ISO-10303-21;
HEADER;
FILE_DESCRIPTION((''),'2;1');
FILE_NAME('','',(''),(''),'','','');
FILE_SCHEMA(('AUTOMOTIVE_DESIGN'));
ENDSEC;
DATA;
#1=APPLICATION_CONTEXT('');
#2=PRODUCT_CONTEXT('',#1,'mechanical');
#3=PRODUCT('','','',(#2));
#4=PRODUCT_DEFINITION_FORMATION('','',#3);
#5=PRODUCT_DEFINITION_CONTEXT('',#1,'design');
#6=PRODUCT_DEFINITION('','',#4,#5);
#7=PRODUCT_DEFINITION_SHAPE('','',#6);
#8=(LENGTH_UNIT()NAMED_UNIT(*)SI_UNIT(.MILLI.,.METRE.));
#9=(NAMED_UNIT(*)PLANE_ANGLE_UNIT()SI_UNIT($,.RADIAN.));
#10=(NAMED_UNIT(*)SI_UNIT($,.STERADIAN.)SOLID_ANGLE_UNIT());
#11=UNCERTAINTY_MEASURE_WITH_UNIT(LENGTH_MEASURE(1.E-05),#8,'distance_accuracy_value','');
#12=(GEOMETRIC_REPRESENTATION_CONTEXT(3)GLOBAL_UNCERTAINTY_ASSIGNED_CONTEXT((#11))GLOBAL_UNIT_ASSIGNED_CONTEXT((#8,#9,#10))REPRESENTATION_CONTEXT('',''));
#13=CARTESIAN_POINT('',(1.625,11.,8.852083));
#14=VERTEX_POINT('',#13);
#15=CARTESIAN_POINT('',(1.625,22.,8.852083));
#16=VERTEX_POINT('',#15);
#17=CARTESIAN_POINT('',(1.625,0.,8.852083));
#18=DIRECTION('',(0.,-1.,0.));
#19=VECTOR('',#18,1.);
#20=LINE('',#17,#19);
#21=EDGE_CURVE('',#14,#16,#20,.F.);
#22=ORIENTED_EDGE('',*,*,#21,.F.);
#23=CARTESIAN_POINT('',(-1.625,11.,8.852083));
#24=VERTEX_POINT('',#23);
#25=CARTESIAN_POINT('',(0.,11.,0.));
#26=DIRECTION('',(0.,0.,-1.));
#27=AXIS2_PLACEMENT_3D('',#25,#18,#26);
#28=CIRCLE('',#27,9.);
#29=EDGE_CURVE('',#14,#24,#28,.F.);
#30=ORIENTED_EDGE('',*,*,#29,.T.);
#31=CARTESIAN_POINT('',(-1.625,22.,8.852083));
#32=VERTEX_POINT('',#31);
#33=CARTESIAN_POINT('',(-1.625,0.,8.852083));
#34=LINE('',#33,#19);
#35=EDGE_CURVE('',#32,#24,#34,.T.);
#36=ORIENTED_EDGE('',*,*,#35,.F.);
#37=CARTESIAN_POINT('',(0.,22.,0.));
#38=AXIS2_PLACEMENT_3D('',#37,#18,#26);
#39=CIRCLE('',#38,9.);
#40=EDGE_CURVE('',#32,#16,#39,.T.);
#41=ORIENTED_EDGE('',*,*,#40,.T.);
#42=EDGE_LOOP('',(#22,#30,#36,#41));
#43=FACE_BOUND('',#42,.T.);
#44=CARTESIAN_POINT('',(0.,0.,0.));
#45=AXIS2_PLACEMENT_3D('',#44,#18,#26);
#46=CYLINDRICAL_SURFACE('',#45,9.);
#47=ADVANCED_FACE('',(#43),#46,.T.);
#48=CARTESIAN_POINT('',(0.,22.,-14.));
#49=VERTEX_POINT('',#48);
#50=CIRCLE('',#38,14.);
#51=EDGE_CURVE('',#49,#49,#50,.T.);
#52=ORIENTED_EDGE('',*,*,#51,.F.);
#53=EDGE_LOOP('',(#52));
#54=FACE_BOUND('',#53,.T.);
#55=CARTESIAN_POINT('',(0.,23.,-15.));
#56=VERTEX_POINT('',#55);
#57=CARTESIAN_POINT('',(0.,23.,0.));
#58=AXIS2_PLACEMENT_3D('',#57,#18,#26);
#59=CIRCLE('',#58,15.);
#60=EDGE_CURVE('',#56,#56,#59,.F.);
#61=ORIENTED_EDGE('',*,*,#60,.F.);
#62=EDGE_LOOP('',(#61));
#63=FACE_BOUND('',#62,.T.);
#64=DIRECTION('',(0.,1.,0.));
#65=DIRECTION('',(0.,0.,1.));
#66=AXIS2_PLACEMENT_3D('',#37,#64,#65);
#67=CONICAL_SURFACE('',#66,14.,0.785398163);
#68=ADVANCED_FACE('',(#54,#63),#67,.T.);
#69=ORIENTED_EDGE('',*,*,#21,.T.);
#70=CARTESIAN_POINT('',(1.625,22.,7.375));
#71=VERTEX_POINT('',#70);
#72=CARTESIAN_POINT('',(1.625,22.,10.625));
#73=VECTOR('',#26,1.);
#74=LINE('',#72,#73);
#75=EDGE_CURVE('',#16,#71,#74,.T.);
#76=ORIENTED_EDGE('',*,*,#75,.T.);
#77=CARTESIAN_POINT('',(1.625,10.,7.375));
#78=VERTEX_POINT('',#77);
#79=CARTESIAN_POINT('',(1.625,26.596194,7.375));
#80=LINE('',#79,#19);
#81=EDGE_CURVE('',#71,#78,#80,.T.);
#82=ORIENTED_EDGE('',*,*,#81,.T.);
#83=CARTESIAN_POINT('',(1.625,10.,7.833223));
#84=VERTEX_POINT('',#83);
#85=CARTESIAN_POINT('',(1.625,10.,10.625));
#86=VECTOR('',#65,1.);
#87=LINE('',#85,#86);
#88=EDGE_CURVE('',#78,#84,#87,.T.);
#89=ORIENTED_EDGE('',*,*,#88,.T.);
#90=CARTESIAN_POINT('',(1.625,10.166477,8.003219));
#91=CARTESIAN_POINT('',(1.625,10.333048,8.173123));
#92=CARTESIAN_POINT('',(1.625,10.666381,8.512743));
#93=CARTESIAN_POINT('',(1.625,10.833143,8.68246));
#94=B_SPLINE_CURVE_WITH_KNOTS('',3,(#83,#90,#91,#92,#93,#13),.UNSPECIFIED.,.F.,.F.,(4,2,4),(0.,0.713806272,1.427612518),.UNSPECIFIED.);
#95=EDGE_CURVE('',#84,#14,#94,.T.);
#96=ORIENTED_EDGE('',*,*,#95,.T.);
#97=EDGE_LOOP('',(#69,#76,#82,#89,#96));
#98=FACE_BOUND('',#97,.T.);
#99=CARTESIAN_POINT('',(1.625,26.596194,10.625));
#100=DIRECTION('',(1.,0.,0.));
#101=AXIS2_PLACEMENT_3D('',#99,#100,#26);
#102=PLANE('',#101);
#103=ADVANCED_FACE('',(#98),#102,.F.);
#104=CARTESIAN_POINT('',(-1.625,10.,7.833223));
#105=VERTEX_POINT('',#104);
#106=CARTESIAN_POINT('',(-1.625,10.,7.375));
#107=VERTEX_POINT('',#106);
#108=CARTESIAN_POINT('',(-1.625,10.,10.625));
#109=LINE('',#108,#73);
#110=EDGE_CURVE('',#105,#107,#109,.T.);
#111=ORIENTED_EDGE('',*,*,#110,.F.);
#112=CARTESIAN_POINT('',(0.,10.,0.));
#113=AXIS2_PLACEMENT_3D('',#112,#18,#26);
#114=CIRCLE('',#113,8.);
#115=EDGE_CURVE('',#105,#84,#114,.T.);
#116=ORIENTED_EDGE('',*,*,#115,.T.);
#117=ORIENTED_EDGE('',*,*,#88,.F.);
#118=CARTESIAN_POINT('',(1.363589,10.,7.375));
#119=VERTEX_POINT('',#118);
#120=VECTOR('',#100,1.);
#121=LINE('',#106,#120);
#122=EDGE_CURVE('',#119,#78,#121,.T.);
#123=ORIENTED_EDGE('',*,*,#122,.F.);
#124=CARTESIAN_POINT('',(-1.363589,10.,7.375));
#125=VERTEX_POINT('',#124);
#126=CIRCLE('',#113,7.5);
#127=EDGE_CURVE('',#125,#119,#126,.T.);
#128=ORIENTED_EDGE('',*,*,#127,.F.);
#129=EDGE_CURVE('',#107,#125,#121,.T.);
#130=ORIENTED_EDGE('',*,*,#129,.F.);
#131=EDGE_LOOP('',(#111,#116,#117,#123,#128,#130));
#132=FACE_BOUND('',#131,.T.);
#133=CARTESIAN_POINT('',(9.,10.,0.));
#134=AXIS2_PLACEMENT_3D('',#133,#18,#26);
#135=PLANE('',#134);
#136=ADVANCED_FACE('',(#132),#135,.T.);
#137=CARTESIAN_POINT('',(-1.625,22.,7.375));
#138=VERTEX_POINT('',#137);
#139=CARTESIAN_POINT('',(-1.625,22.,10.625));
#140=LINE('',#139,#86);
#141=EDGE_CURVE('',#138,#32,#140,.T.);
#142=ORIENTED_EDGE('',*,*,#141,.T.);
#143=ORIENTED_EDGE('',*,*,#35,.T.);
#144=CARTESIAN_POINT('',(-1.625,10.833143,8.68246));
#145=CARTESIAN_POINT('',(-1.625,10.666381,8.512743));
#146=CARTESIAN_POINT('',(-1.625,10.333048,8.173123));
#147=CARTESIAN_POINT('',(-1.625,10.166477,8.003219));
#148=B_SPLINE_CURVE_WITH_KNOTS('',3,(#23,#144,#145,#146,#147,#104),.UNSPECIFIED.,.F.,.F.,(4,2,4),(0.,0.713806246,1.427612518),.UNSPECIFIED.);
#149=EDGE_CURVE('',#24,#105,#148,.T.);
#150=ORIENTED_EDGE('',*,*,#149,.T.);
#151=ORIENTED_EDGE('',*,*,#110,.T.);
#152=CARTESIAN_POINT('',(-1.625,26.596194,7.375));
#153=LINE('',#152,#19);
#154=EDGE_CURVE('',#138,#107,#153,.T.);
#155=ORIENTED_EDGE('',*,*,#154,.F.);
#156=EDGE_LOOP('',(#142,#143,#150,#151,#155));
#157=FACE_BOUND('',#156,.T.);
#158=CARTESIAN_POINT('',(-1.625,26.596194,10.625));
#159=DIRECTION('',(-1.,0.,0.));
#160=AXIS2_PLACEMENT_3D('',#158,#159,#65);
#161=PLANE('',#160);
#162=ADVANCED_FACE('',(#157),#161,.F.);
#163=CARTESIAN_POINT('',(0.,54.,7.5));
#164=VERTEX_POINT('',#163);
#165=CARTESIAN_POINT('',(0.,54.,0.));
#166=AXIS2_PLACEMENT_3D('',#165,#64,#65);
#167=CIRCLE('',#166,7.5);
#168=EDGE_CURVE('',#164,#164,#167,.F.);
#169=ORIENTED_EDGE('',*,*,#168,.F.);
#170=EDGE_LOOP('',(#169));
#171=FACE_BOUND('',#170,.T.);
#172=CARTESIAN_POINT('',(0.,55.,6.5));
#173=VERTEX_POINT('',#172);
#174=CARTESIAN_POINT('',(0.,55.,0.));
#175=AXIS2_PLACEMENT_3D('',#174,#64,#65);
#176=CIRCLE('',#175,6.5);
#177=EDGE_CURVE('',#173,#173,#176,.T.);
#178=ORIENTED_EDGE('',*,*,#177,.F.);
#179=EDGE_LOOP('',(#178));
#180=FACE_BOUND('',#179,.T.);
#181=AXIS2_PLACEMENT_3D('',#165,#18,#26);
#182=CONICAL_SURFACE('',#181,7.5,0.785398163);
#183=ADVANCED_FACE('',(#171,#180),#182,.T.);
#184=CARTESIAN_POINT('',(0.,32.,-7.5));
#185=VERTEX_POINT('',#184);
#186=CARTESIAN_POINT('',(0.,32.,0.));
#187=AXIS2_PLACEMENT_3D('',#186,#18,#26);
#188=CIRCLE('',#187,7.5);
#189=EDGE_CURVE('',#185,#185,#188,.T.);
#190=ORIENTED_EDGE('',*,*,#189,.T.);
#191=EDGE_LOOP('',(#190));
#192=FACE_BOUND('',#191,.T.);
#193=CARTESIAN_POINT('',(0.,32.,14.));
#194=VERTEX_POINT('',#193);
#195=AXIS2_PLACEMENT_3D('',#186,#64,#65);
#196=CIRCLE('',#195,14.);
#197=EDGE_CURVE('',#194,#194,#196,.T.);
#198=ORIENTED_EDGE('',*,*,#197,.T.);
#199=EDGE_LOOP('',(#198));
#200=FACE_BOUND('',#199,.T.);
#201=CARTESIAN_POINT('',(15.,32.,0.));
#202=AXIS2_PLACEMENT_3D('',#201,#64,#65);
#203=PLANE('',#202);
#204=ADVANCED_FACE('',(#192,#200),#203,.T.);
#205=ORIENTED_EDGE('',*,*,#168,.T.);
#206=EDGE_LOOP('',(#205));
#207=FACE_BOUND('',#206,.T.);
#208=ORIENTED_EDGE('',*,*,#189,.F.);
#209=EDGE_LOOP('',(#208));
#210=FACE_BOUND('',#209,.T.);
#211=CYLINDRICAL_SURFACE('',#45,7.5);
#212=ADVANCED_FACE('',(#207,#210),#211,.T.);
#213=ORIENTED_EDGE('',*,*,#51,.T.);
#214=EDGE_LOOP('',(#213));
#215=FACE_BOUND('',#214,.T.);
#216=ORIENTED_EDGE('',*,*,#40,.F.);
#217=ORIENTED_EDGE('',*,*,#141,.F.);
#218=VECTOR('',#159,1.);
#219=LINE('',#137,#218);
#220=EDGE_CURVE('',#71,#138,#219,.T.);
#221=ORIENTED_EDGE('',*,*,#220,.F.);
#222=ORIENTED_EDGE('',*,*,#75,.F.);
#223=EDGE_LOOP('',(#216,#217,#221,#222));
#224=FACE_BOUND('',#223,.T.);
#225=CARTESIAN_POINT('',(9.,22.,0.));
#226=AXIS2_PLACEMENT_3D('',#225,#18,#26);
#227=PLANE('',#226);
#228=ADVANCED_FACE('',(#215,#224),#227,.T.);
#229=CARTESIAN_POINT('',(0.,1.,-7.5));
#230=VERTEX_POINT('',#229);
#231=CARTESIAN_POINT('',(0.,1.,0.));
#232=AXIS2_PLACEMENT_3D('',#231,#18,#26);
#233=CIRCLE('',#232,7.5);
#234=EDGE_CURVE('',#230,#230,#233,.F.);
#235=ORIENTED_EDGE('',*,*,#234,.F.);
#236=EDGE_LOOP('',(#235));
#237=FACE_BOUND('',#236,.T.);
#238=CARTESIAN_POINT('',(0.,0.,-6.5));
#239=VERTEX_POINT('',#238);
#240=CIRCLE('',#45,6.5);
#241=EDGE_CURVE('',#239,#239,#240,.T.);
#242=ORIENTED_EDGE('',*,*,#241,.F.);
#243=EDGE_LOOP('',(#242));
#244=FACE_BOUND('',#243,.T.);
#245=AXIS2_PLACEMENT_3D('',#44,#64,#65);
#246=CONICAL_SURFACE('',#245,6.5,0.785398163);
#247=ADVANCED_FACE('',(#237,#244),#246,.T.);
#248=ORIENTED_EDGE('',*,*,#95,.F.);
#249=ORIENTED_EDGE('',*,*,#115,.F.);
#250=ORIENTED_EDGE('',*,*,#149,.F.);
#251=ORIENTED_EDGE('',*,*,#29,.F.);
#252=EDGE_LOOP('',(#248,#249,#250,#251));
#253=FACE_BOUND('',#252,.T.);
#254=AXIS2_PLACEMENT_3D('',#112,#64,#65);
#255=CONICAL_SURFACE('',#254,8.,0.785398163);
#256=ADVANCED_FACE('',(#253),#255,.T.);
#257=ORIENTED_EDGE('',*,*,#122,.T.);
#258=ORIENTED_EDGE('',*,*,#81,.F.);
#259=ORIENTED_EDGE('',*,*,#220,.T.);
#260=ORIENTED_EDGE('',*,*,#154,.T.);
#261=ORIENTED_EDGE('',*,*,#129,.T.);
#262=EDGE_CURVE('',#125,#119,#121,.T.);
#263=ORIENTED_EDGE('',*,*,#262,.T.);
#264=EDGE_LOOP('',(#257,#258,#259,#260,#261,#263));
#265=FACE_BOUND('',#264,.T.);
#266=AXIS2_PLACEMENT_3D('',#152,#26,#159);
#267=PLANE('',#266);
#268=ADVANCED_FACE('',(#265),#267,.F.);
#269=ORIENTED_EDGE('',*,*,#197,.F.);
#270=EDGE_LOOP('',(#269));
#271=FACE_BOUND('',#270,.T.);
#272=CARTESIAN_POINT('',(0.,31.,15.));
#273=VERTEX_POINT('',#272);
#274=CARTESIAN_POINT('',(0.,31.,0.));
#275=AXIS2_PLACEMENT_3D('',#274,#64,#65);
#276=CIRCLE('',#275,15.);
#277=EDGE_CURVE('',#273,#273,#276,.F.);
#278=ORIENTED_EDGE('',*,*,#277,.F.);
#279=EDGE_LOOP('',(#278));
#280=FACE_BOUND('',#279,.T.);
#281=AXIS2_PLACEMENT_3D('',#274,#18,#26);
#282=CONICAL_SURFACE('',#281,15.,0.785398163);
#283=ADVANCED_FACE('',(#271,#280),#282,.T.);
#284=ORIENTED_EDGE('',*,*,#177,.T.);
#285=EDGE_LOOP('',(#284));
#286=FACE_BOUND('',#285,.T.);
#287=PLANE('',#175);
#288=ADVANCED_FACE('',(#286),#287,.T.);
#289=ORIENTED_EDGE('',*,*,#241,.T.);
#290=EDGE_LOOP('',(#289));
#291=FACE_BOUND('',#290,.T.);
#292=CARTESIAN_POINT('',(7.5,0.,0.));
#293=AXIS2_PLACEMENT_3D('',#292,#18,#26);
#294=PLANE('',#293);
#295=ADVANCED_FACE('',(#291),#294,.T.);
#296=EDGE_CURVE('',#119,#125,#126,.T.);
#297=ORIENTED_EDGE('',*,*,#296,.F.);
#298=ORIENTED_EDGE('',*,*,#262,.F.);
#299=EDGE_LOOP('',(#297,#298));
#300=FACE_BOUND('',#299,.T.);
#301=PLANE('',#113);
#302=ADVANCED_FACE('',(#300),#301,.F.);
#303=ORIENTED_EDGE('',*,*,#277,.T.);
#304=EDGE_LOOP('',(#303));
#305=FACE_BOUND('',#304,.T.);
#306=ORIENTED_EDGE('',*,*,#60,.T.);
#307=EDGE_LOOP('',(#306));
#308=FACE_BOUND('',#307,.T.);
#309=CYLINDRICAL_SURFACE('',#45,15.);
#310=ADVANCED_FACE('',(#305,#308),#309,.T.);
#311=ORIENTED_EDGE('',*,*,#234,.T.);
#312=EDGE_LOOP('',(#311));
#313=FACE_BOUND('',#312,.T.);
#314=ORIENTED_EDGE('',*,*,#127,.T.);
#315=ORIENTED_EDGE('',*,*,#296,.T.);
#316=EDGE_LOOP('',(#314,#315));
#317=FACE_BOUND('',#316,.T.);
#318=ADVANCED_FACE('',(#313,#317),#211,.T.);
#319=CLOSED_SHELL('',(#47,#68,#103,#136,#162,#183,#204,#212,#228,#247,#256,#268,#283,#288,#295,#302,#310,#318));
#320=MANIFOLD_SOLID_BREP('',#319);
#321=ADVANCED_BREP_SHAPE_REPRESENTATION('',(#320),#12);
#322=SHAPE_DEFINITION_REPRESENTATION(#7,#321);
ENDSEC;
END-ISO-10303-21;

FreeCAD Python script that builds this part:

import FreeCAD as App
import Part
import Sketcher

V = App.Vector
Q = App.Units.Quantity


def edges_at(feature, points):
    """Names of the edges that pass closest to the given points."""
    edges = feature.Shape.Edges
    near = lambda p: min(range(len(edges)), key=lambda i: edges[i].distToShape(Part.Vertex(*p))[0])
    return sorted({f"Edge{near(p) + 1}" for p in points})


def add_polygon(sketch, points):
    """Adds a closed chain of lines whose ends are joined by coincident constraints."""
    first, n = sketch.GeometryCount, len(points)
    for a, b in zip(points, points[1:] + points[:1]):
        sketch.addGeometry(Part.LineSegment(App.Vector(*a, 0), App.Vector(*b, 0)), False)
    for i in range(n):
        sketch.addConstraint(Sketcher.Constraint("Coincident", first + i, 2, first + (i + 1) % n, 1))

doc = App.newDocument("Part")
body = doc.addObject("PartDesign::Body", "Body")

# Sketch on XY plane
sketch1 = body.newObject("Sketcher::SketchObject", "Sketch")
sketch1.AttachmentSupport = (doc.getObject("XY_Plane"), [""])
sketch1.MapMode = "FlatFace"
add_polygon(sketch1, [(0, 55), (0, 0), (7.5, 0), (7.5, 10), (9, 10), (9, 22), (15, 22), (15, 32), (7.5, 32), (7.5, 55)])  # lines 0-9
sketch1.addConstraint([
    Sketcher.Constraint("Vertical", 0),
    Sketcher.Constraint("Horizontal", 1),
    Sketcher.Constraint("Vertical", 2),
    Sketcher.Constraint("Horizontal", 3),
    Sketcher.Constraint("Vertical", 4),
    Sketcher.Constraint("Horizontal", 5),
    Sketcher.Constraint("Vertical", 6),
    Sketcher.Constraint("Horizontal", 7),
    Sketcher.Constraint("Vertical", 8),
    Sketcher.Constraint("Horizontal", 9),
    Sketcher.Constraint("Coincident", 0, 2, -1, 1),
    Sketcher.Constraint("Vertical", 2, 2, 7, 2),
    Sketcher.Constraint("Equal", 1, 7),
    Sketcher.Constraint("Equal", 2, 6),
    Sketcher.Constraint("DistanceX", 5, 1, 5, 2, Q("6 mm")),
    Sketcher.Constraint("DistanceY", 0, 2, 0, 1, Q("55 mm")),
    Sketcher.Constraint("DistanceY", 2, 1, 2, 2, Q("10 mm")),
    Sketcher.Constraint("DistanceY", 4, 1, 4, 2, Q("12 mm")),
    Sketcher.Constraint("DistanceX", 1, 1, 1, 2, Q("7.5 mm")),
])
revolution = body.newObject("PartDesign::Revolution", "Revolution")
revolution.Profile = sketch1
revolution.ReferenceAxis = (sketch1, ["V_Axis"])
revolution.Angle = 360

# Sketch on XZ plane
sketch2 = body.newObject("Sketcher::SketchObject", "Sketch001")
sketch2.AttachmentSupport = (doc.getObject("XZ_Plane"), [""])
sketch2.MapMode = "FlatFace"
sketch2.AttachmentOffset = App.Placement(V(0, 0, -10), App.Rotation())
add_polygon(sketch2, [(-1.6, 10.6), (-1.6, 7.4), (1.6, 7.4), (1.6, 10.6)])  # lines 0-3
sketch2.addConstraint([
    Sketcher.Constraint("Vertical", 0),
    Sketcher.Constraint("Horizontal", 1),
    Sketcher.Constraint("Vertical", 2),
    Sketcher.Constraint("Horizontal", 3),
    Sketcher.Constraint("Equal", 3, 0),
    Sketcher.Constraint("DistanceX", 1, 1, 1, 2, Q("3.25 mm")),
    Sketcher.Constraint("DistanceX", 0, 2, -1, 1, Q("1.625 mm")),
    Sketcher.Constraint("DistanceY", -1, 1, 0, 2, Q("7.375 mm")),
])
pocket1 = body.newObject("PartDesign::Pocket", "Pocket")
pocket1.Profile = sketch2
pocket1.Length = 12
doc.recompute()

chamfer = body.newObject("PartDesign::Chamfer", "Chamfer")
chamfer.Base = (pocket1, edges_at(pocket1, [
    (0, 55, 7.5),
    (0, 10, -9),
    (0, 0, 7.5),
    (0, 22, 15),
    (0, 32, 15),
]))
chamfer.Size = 1

doc.recompute()
